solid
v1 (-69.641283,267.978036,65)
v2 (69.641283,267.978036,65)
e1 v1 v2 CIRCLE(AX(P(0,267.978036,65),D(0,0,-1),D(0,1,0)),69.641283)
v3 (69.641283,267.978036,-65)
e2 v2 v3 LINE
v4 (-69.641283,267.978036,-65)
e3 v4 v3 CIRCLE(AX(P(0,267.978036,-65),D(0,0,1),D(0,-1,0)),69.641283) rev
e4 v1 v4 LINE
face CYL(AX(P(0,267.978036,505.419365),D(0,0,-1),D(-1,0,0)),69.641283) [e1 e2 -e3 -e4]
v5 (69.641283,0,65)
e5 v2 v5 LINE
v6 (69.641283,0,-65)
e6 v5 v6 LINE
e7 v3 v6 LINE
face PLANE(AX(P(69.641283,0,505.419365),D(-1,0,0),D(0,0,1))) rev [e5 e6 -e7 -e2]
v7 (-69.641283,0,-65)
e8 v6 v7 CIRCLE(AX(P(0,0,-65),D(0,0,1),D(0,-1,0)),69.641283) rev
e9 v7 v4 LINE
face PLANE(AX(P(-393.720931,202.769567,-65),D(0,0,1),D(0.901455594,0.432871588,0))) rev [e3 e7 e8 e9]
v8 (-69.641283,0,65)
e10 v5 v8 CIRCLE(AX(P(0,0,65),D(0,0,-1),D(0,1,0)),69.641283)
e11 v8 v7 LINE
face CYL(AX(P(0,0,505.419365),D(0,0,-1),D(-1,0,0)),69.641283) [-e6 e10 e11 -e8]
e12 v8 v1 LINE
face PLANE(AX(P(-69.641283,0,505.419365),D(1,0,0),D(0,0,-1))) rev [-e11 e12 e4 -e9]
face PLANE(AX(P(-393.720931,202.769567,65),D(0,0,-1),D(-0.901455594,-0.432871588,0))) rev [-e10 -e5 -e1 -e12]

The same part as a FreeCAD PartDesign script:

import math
import FreeCAD as App
import Part
import Sketcher

V = App.Vector

doc = App.newDocument("Part")
body = doc.addObject("PartDesign::Body", "Body")

# Sketch on XY plane
sketch1 = body.newObject("Sketcher::SketchObject", "Sketch")
sketch1.AttachmentSupport = (doc.getObject("XY_Plane"), [""])
sketch1.MapMode = "FlatFace"
sketch1.addGeometry(Part.LineSegment(V(-70, 268, 0), V(-70, 0, 0)), False)
sketch1.addGeometry(Part.ArcOfCircle(Part.Circle(V(0, 0, 0), V(0, 0, 1), 70), math.radians(180), math.radians(360)), False)
sketch1.addGeometry(Part.LineSegment(V(70, 0, 0), V(70, 268, 0)), False)
sketch1.addGeometry(Part.ArcOfCircle(Part.Circle(V(0, 268, 0), V(0, 0, 1), 70), math.radians(0), math.radians(180)), False)
sketch1.addConstraint(Sketcher.Constraint("Tangent", 0, 2, 1, 1))
sketch1.addConstraint(Sketcher.Constraint("Tangent", 1, 2, 2, 1))
sketch1.addConstraint(Sketcher.Constraint("Tangent", 2, 2, 3, 1))
sketch1.addConstraint(Sketcher.Constraint("Tangent", 3, 2, 0, 1))
sketch1.addConstraint(Sketcher.Constraint("Vertical", 0))
sketch1.addConstraint(Sketcher.Constraint("Vertical", 2))
sketch1.addConstraint(Sketcher.Constraint("Coincident", 1, 3, -1, 1))
sketch1.addConstraint(Sketcher.Constraint("Radius", 1, 69.641283))
sketch1.addConstraint(Sketcher.Constraint("DistanceY", 0, 2, 0, 1, 267.978036))
pad1 = body.newObject("PartDesign::Pad", "Pad")
pad1.Profile = sketch1
pad1.Type = "TwoLengths"
pad1.Length = 65
pad1.Length2 = 65

doc.recompute()
